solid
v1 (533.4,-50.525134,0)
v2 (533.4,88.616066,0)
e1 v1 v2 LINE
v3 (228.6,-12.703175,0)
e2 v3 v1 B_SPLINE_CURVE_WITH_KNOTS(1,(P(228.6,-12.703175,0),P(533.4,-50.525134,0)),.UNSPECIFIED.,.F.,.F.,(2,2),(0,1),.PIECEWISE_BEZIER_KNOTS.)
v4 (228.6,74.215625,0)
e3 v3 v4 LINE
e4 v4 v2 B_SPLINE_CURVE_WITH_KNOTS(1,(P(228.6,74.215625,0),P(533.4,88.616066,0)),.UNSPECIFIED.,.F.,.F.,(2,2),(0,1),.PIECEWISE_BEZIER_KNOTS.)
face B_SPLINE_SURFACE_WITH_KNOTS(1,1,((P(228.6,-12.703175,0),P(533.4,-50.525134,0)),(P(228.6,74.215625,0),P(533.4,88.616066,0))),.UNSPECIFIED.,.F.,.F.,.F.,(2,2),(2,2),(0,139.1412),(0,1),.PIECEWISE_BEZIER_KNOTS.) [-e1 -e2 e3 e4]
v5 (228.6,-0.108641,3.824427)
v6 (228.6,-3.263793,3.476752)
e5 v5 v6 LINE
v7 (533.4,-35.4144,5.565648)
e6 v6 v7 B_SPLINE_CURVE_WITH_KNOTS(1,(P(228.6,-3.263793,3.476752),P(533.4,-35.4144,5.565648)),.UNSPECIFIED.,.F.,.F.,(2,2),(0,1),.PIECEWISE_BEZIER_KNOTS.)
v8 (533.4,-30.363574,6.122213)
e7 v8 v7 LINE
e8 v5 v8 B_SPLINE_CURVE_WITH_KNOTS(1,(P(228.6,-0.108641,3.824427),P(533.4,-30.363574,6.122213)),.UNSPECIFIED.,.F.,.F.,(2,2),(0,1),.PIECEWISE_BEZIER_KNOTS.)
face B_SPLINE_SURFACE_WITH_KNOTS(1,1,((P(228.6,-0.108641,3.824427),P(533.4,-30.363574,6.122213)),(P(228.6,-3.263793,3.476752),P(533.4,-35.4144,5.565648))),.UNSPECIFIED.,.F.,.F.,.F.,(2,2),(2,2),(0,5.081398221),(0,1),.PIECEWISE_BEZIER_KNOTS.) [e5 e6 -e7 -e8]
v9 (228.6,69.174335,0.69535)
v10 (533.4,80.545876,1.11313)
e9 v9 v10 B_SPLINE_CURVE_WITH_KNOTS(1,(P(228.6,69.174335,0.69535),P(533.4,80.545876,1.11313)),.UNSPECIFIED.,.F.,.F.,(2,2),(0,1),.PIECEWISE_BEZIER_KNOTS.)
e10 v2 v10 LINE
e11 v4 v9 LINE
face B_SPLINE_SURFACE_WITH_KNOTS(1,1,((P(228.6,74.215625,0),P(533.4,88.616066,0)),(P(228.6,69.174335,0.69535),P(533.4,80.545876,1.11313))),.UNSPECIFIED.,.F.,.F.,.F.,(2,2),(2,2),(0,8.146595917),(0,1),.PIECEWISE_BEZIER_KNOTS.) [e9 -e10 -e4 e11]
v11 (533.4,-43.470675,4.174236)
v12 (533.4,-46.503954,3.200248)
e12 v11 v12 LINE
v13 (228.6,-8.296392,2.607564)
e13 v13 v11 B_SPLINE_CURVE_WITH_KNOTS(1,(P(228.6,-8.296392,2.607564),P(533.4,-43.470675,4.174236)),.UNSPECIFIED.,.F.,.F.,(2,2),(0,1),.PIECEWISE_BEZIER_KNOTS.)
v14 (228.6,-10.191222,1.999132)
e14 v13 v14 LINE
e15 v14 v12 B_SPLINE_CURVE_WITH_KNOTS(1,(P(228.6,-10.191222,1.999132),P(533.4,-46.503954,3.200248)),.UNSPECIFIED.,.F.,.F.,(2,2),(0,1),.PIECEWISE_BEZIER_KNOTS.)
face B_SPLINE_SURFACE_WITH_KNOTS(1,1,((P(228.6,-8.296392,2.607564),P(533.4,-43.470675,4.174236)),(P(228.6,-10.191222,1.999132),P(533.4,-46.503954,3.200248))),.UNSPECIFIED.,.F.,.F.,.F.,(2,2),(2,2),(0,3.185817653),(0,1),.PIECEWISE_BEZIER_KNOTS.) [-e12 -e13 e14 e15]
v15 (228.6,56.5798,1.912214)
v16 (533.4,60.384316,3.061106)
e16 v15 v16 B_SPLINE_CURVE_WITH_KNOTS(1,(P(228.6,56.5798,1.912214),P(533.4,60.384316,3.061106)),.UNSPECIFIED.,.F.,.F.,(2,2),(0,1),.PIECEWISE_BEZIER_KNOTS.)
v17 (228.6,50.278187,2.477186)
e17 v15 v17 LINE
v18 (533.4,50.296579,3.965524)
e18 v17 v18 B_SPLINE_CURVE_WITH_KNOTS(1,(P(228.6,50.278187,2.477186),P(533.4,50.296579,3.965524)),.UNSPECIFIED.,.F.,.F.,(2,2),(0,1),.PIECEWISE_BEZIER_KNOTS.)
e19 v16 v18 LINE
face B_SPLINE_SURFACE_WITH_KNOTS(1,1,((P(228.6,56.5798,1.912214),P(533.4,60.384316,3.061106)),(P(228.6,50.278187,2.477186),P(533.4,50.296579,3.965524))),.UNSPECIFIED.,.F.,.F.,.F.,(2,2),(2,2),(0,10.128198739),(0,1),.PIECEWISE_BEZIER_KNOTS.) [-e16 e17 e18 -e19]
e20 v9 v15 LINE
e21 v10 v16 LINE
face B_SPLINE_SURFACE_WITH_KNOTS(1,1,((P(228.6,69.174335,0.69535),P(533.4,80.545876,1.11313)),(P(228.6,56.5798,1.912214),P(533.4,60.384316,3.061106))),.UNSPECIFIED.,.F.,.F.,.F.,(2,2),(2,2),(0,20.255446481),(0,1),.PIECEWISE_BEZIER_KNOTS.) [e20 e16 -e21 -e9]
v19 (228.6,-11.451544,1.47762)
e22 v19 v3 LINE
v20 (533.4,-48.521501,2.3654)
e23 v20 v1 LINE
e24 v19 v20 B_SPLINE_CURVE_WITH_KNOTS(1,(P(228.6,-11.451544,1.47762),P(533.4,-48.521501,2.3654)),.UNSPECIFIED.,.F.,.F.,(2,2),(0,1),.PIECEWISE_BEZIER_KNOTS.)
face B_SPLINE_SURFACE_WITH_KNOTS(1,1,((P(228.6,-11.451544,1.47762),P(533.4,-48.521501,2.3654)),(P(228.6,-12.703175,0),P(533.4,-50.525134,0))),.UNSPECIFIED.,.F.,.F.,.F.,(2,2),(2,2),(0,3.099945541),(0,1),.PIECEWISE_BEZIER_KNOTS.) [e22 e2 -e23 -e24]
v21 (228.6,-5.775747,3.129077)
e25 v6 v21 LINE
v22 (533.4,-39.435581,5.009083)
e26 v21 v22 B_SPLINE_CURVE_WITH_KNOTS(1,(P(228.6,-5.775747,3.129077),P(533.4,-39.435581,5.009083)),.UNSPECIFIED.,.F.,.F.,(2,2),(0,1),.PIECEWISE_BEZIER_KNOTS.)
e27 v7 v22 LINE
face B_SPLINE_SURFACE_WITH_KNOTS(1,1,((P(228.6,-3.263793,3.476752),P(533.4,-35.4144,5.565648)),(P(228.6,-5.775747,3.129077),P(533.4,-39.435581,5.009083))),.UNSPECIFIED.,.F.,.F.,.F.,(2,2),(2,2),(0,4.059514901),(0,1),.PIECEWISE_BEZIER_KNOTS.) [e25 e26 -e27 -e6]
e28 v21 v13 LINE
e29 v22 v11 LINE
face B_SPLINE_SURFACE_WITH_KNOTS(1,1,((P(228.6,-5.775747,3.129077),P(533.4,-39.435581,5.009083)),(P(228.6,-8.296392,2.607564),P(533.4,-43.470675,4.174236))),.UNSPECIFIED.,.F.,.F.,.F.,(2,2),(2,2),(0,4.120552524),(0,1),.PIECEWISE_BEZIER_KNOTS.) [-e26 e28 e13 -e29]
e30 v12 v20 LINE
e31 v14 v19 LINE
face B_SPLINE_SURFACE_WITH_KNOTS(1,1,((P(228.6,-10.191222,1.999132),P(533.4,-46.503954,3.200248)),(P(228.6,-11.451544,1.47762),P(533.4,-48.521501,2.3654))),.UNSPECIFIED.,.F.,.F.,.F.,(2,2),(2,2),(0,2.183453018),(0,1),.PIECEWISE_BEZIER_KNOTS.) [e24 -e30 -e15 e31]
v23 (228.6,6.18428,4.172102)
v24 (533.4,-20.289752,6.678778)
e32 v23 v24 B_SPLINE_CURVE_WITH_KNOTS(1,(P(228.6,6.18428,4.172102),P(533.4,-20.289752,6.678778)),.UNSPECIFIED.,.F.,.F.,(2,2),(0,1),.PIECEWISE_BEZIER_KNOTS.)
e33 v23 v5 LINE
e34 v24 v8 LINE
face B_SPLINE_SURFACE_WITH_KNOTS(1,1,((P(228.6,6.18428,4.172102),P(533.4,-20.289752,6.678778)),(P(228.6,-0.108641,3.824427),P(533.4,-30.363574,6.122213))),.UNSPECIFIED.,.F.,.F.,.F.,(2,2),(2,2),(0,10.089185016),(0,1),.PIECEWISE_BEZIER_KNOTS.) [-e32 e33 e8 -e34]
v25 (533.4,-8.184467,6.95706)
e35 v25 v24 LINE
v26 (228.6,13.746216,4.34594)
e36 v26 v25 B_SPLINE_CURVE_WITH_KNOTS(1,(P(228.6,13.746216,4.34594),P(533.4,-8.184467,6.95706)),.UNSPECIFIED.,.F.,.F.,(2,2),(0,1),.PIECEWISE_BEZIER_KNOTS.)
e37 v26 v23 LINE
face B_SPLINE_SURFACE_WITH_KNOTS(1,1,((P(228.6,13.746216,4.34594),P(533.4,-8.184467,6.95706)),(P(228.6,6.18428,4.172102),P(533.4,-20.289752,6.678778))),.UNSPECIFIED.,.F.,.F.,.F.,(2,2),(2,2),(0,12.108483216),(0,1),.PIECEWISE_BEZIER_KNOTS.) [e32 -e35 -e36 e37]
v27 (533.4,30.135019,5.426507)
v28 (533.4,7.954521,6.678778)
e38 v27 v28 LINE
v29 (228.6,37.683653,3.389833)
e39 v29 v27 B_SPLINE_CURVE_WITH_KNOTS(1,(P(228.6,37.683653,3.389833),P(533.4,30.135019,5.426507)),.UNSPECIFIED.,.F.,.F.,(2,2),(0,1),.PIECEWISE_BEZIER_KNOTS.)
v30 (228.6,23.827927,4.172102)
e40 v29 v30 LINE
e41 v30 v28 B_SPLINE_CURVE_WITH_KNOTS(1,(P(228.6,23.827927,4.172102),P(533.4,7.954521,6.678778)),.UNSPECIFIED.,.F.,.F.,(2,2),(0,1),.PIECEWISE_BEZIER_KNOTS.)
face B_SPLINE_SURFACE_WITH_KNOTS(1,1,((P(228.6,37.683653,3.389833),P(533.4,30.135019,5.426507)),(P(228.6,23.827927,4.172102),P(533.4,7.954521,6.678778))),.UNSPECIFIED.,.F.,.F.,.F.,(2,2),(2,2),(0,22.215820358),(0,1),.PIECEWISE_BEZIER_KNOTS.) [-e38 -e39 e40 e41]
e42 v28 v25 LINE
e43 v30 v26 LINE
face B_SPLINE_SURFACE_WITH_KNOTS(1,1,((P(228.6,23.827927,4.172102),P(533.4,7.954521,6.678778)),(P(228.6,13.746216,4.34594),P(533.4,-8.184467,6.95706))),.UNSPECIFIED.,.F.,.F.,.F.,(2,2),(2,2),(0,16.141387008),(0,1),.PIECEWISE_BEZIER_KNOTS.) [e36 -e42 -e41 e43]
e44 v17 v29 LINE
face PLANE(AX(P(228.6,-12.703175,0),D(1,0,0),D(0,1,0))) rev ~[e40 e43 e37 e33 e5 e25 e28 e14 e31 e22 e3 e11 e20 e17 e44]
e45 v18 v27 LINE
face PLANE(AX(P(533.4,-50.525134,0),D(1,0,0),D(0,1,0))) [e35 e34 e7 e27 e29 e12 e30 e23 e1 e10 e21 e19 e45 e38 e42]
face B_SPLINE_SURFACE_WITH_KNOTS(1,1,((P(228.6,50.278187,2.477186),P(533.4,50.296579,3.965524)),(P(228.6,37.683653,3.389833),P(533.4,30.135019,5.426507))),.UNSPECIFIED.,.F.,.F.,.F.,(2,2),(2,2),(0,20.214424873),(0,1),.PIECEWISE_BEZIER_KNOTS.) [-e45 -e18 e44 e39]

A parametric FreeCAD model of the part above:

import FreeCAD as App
import Part
import Sketcher
Q = App.Units.Quantity


def add_polygon(sketch, points):
    """Adds a closed chain of lines whose ends are joined by coincident constraints."""
    first, n = sketch.GeometryCount, len(points)
    for a, b in zip(points, points[1:] + points[:1]):
        sketch.addGeometry(Part.LineSegment(App.Vector(*a, 0), App.Vector(*b, 0)), False)
    for i in range(n):
        sketch.addConstraint(Sketcher.Constraint("Coincident", first + i, 2, first + (i + 1) % n, 1))

doc = App.newDocument("Part")
params = doc.addObject("Spreadsheet::Sheet", "Params")
for row, (alias, value) in enumerate([
    ("sketch1_width", "3.422 in"),
    ("sketch2_width", "5.478 in"),
], start=1):
    params.set(f"A{row}", alias)
    params.set(f"B{row}", "=" + value)
    params.setAlias(f"B{row}", alias)

body = doc.addObject("PartDesign::Body", "Body")

# Sketch on YZ plane
sketch1 = body.newObject("Sketcher::SketchObject", "Sketch")
sketch1.AttachmentSupport = (doc.getObject("YZ_Plane"), [""])
sketch1.MapMode = "FlatFace"
sketch1.AttachmentOffset = App.Placement(App.Vector(0, 0, 9 * 25.4), App.Rotation())
add_polygon(sketch1, [(-12.7, 0), (74.2, 0), (69.2, 0.7), (56.6, 1.9), (50.3, 2.5), (37.7, 3.4), (23.8, 4.2), (13.7, 4.3), (6.2, 4.2), (-0.1, 3.8), (-3.3, 3.5), (-5.8, 3.1), (-8.3, 2.6), (-10.2, 2), (-11.5, 1.5)])  # lines 0-14
sketch1.addConstraint([
    Sketcher.Constraint("Horizontal", 0),
    Sketcher.Constraint("PointOnObject", 0, 2, -1),
    Sketcher.Constraint("Horizontal", 5, 2, 7, 2),
    Sketcher.Constraint("DistanceX", 0, 1, 0, 2, Q("3.422 in")),
    Sketcher.Constraint("DistanceX", -1, 1, 0, 2, Q("2.921875 in")),
    Sketcher.Constraint("DistanceY", -1, 1, 6, 2, Q("0.1711 in")),
    Sketcher.Constraint("Distance", 10, 2.5359),
    Sketcher.Constraint("DistanceX", -1, 1, 2, 2, 56.5798),
    Sketcher.Constraint("DistanceY", -1, 1, 5, 2, 4.172102),
    Sketcher.Constraint("DistanceX", 11, 2, 9, 2, 5.032599),
    Sketcher.Constraint("Distance", 1, 5.089019),
    Sketcher.Constraint("Distance", 3, 6.326889),
    Sketcher.Constraint("Distance", 5, 13.877791),
    Sketcher.Constraint("Distance", 6, 10.08321),
    Sketcher.Constraint("Distance", 9, 3.17425),
    Sketcher.Constraint("Distance", 11, 2.574029),
    Sketcher.Constraint("Distance", 12, 1.990118),
    Sketcher.Constraint("Distance", 13, 1.36396),
    Sketcher.Constraint("DistanceY", -1, 1, 1, 2, 0.69535),
    Sketcher.Constraint("DistanceX", -1, 1, 7, 2, 6.18428),
    Sketcher.Constraint("DistanceX", 8, 2, -1, 1, 0.108641),
    Sketcher.Constraint("DistanceY", -1, 1, 9, 2, 3.476752),
    Sketcher.Constraint("DistanceY", -1, 1, 12, 2, 1.999132),
    Sketcher.Constraint("DistanceY", -1, 1, 13, 2, 1.47762),
    Sketcher.Constraint("DistanceX", 3, 2, 0, 2, 23.937438),
    Sketcher.Constraint("DistanceY", 2, 2, 4, 2, 1.477619),
    Sketcher.Constraint("DistanceX", 4, 2, 1, 2, 31.490682),
    Sketcher.Constraint("DistanceY", 4, 2, 5, 2, 0.782269),
    Sketcher.Constraint("DistanceY", 3, 2, 8, 2, 1.347241),
    Sketcher.Constraint("DistanceY", 10, 2, 8, 2, 0.69535),
])
sketch1.setExpression("Constraints[18]", "Params.sketch1_width")

# Sketch on YZ plane
sketch2 = body.newObject("Sketcher::SketchObject", "Sketch001")
sketch2.AttachmentSupport = (doc.getObject("YZ_Plane"), [""])
sketch2.MapMode = "FlatFace"
sketch2.AttachmentOffset = App.Placement(App.Vector(0, 0, 21 * 25.4), App.Rotation())
add_polygon(sketch2, [(-48.5, 2.4), (-50.5, 0), (88.6, 0), (80.5, 1.1), (60.4, 3.1), (50.3, 4), (30.1, 5.4), (8, 6.7), (-8.2, 7), (-20.3, 6.7), (-30.4, 6.1), (-35.4, 5.6), (-39.4, 5), (-43.5, 4.2), (-46.5, 3.2)])  # lines 0-14
sketch2.addConstraint([
    Sketcher.Constraint("Horizontal", 1),
    Sketcher.Constraint("PointOnObject", 0, 2, -1),
    Sketcher.Constraint("Horizontal", 6, 2, 8, 2),
    Sketcher.Constraint("DistanceX", 1, 1, 1, 2, Q("5.478 in")),
    Sketcher.Constraint("DistanceY", -1, 1, 7, 2, Q("0.2739 in")),
    Sketcher.Constraint("Distance", 4, 10.128199),
    Sketcher.Constraint("Distance", 10, 5.081398),
    Sketcher.Constraint("DistanceX", 10, 2, -1, 1, 35.4144),
    Sketcher.Constraint("DistanceX", 14, 2, -1, 1, 48.521501),
    Sketcher.Constraint("DistanceY", -1, 1, 14, 2, 2.3654),
    Sketcher.Constraint("DistanceY", 3, 2, 5, 2, 2.365401),
    Sketcher.Constraint("DistanceX", 6, 2, 5, 2, 22.180498),
    Sketcher.Constraint("DistanceX", 12, 2, 9, 2, 13.107101),
    Sketcher.Constraint("DistanceY", 13, 2, 10, 2, 2.3654),
    Sketcher.Constraint("Distance", 6, 22.21582),
    Sketcher.Constraint("DistanceY", -1, 1, 2, 2, 1.11313),
    Sketcher.Constraint("DistanceX", -1, 1, 4, 2, 50.296579),
    Sketcher.Constraint("DistanceX", -1, 1, 5, 2, 30.135019),
    Sketcher.Constraint("DistanceY", -1, 1, 6, 2, 6.678778),
    Sketcher.Constraint("DistanceX", 8, 2, -1, 1, 20.289752),
    Sketcher.Constraint("DistanceY", -1, 1, 10, 2, 5.565648),
    Sketcher.Constraint("DistanceX", 11, 2, -1, 1, 39.435581),
    Sketcher.Constraint("DistanceX", 2, 2, 1, 2, 8.07019),
    Sketcher.Constraint("DistanceX", 3, 2, 2, 2, 20.16156),
    Sketcher.Constraint("DistanceX", 0, 2, 9, 2, 20.16156),
    Sketcher.Constraint("DistanceY", 11, 2, 9, 2, 1.11313),
    Sketcher.Constraint("DistanceX", 13, 2, 12, 2, 3.033279),
    Sketcher.Constraint("Distance", 0, 3.099946),
    Sketcher.Constraint("Distance", 7, 16.141387),
    Sketcher.Constraint("Distance", 12, 4.120553),
])
sketch2.setExpression("Constraints[18]", "Params.sketch2_width")

additiveloft = body.newObject("PartDesign::AdditiveLoft", "AdditiveLoft")
additiveloft.Profile = sketch1
additiveloft.Sections = [sketch2]

doc.recompute()
